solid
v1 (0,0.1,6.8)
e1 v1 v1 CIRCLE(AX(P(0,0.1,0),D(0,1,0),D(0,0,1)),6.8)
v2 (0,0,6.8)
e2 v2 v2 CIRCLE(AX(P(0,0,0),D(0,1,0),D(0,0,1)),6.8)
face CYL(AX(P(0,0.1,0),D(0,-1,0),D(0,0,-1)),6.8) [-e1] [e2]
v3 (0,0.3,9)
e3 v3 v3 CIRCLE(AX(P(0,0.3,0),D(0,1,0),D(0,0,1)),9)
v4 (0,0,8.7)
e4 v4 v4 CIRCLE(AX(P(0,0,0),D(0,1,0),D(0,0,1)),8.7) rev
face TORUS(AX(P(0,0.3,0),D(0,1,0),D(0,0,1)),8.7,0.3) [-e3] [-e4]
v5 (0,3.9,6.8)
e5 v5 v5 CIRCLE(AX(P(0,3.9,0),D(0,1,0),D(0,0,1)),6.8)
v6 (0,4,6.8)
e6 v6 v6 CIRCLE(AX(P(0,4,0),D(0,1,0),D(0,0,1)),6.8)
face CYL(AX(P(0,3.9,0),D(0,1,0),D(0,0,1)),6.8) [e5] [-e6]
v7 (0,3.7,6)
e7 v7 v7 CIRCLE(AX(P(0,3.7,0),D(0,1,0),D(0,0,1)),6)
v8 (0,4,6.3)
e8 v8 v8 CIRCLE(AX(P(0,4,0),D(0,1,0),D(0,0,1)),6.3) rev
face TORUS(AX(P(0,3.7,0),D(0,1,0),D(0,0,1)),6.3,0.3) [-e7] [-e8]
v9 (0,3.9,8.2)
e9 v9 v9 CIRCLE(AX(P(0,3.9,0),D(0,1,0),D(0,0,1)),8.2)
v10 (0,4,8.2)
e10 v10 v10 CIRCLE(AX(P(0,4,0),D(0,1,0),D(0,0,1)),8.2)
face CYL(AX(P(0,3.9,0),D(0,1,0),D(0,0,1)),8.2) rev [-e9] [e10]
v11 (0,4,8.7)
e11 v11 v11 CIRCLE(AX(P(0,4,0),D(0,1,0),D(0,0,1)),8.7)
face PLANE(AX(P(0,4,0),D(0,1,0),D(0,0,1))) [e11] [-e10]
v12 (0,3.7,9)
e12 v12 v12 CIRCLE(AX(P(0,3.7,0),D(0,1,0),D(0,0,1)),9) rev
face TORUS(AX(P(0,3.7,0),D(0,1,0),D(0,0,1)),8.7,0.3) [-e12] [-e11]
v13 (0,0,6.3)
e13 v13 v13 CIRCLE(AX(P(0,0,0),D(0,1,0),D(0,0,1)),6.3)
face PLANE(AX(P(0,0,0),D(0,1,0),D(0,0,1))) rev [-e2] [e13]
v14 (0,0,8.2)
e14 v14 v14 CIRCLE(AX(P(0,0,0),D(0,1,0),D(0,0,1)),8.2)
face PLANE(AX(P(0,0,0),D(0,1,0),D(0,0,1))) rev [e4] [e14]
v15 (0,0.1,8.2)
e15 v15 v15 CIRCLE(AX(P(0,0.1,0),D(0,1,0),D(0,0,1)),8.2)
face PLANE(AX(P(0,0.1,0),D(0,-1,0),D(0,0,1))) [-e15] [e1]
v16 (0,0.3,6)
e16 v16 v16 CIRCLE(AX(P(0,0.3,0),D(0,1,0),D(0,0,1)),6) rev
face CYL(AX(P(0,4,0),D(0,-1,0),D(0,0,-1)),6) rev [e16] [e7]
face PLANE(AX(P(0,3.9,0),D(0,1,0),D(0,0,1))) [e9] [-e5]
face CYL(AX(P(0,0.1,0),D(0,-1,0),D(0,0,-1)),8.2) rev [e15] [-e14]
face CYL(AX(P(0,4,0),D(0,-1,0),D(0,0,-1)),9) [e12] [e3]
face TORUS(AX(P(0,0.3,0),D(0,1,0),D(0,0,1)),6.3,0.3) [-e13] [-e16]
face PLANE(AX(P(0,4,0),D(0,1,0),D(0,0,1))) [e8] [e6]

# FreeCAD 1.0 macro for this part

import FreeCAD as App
import Part
import Sketcher
Q = App.Units.Quantity


def edges_at(feature, points):
    """Names of the edges that pass closest to the given points."""
    edges = feature.Shape.Edges
    near = lambda p: min(range(len(edges)), key=lambda i: edges[i].distToShape(Part.Vertex(*p))[0])
    return sorted({f"Edge{near(p) + 1}" for p in points})

doc = App.newDocument("Part")
params = doc.addObject("Spreadsheet::Sheet", "Params")
for row, (alias, value) in enumerate([
    ("sketch1_diameter", "18 mm"),
    ("sketch1_diameter2", "12 mm"),
    ("pad1_length", "4 mm"),
    ("sketch2_diameter", "16.4 mm"),
    ("sketch2_diameter2", "13.6 mm"),
    ("pocket1_length", "0.1 mm"),
    ("fillet_radius", "0.3 mm"),
], start=1):
    params.set(f"A{row}", alias)
    params.set(f"B{row}", "=" + value)
    params.setAlias(f"B{row}", alias)

body = doc.addObject("PartDesign::Body", "Body")

# Sketch on XZ plane
sketch1 = body.newObject("Sketcher::SketchObject", "Sketch")
sketch1.AttachmentSupport = (doc.getObject("XZ_Plane"), [""])
sketch1.MapMode = "FlatFace"
sketch1.addGeometry([
    Part.Circle(App.Vector(0, 0, 0), App.Vector(0, 0, 1), 9),
    Part.Circle(App.Vector(0, 0, 0), App.Vector(0, 0, 1), 6),
], False)
sketch1.addConstraint([
    Sketcher.Constraint("Coincident", 0, 3, -1, 1),
    Sketcher.Constraint("Coincident", 1, 3, -1, 1),
    Sketcher.Constraint("Diameter", 0, Q("18 mm")),
    Sketcher.Constraint("Diameter", 1, Q("12 mm")),
])
sketch1.setExpression("Constraints[2]", "Params.sketch1_diameter")
sketch1.setExpression("Constraints[3]", "Params.sketch1_diameter2")
pad1 = body.newObject("PartDesign::Pad", "Pad")
pad1.Profile = sketch1
pad1.setExpression("Length", "Params.pad1_length")
pad1.Reversed = True

# Sketch on XZ plane
sketch2 = body.newObject("Sketcher::SketchObject", "Sketch001")
sketch2.AttachmentSupport = (doc.getObject("XZ_Plane"), [""])
sketch2.MapMode = "FlatFace"
sketch2.AttachmentOffset = App.Placement(App.Vector(0, 0, -4), App.Rotation())
sketch2.addGeometry([
    Part.Circle(App.Vector(0, 0, 0), App.Vector(0, 0, 1), 8.2),
    Part.Circle(App.Vector(0, 0, 0), App.Vector(0, 0, 1), 6.8),
], False)
sketch2.addConstraint([
    Sketcher.Constraint("Coincident", 0, 3, -1, 1),
    Sketcher.Constraint("Coincident", 1, 3, -1, 1),
    Sketcher.Constraint("Diameter", 0, Q("16.4 mm")),
    Sketcher.Constraint("Diameter", 1, Q("13.6 mm")),
])
sketch2.setExpression("Constraints[2]", "Params.sketch2_diameter")
sketch2.setExpression("Constraints[3]", "Params.sketch2_diameter2")
pocket1 = body.newObject("PartDesign::Pocket", "Pocket")
pocket1.Profile = sketch2
pocket1.setExpression("Length", "Params.pocket1_length")
pocket1.Reversed = True
doc.recompute()

datumplane = body.newObject("PartDesign::Plane", "DatumPlane")
datumplane.AttachmentSupport = (doc.getObject("XZ_Plane"), [""])
datumplane.MapMode = "FlatFace"
datumplane.AttachmentOffset = App.Placement(App.Vector(0, 0, -2), App.Rotation())
mirrored = body.newObject("PartDesign::Mirrored", "Mirrored")
mirrored.Originals = [pocket1]
mirrored.MirrorPlane = (datumplane, [""])
body.Tip = mirrored
doc.recompute()

fillet = body.newObject("PartDesign::Fillet", "Fillet")
fillet.Base = (mirrored, edges_at(mirrored, [
    (0, 0, -9),
    (0, 4, -9),
    (0, 0, -6),
    (0, 4, -6),
]))
fillet.setExpression("Radius", "Params.fillet_radius")

doc.recompute()
